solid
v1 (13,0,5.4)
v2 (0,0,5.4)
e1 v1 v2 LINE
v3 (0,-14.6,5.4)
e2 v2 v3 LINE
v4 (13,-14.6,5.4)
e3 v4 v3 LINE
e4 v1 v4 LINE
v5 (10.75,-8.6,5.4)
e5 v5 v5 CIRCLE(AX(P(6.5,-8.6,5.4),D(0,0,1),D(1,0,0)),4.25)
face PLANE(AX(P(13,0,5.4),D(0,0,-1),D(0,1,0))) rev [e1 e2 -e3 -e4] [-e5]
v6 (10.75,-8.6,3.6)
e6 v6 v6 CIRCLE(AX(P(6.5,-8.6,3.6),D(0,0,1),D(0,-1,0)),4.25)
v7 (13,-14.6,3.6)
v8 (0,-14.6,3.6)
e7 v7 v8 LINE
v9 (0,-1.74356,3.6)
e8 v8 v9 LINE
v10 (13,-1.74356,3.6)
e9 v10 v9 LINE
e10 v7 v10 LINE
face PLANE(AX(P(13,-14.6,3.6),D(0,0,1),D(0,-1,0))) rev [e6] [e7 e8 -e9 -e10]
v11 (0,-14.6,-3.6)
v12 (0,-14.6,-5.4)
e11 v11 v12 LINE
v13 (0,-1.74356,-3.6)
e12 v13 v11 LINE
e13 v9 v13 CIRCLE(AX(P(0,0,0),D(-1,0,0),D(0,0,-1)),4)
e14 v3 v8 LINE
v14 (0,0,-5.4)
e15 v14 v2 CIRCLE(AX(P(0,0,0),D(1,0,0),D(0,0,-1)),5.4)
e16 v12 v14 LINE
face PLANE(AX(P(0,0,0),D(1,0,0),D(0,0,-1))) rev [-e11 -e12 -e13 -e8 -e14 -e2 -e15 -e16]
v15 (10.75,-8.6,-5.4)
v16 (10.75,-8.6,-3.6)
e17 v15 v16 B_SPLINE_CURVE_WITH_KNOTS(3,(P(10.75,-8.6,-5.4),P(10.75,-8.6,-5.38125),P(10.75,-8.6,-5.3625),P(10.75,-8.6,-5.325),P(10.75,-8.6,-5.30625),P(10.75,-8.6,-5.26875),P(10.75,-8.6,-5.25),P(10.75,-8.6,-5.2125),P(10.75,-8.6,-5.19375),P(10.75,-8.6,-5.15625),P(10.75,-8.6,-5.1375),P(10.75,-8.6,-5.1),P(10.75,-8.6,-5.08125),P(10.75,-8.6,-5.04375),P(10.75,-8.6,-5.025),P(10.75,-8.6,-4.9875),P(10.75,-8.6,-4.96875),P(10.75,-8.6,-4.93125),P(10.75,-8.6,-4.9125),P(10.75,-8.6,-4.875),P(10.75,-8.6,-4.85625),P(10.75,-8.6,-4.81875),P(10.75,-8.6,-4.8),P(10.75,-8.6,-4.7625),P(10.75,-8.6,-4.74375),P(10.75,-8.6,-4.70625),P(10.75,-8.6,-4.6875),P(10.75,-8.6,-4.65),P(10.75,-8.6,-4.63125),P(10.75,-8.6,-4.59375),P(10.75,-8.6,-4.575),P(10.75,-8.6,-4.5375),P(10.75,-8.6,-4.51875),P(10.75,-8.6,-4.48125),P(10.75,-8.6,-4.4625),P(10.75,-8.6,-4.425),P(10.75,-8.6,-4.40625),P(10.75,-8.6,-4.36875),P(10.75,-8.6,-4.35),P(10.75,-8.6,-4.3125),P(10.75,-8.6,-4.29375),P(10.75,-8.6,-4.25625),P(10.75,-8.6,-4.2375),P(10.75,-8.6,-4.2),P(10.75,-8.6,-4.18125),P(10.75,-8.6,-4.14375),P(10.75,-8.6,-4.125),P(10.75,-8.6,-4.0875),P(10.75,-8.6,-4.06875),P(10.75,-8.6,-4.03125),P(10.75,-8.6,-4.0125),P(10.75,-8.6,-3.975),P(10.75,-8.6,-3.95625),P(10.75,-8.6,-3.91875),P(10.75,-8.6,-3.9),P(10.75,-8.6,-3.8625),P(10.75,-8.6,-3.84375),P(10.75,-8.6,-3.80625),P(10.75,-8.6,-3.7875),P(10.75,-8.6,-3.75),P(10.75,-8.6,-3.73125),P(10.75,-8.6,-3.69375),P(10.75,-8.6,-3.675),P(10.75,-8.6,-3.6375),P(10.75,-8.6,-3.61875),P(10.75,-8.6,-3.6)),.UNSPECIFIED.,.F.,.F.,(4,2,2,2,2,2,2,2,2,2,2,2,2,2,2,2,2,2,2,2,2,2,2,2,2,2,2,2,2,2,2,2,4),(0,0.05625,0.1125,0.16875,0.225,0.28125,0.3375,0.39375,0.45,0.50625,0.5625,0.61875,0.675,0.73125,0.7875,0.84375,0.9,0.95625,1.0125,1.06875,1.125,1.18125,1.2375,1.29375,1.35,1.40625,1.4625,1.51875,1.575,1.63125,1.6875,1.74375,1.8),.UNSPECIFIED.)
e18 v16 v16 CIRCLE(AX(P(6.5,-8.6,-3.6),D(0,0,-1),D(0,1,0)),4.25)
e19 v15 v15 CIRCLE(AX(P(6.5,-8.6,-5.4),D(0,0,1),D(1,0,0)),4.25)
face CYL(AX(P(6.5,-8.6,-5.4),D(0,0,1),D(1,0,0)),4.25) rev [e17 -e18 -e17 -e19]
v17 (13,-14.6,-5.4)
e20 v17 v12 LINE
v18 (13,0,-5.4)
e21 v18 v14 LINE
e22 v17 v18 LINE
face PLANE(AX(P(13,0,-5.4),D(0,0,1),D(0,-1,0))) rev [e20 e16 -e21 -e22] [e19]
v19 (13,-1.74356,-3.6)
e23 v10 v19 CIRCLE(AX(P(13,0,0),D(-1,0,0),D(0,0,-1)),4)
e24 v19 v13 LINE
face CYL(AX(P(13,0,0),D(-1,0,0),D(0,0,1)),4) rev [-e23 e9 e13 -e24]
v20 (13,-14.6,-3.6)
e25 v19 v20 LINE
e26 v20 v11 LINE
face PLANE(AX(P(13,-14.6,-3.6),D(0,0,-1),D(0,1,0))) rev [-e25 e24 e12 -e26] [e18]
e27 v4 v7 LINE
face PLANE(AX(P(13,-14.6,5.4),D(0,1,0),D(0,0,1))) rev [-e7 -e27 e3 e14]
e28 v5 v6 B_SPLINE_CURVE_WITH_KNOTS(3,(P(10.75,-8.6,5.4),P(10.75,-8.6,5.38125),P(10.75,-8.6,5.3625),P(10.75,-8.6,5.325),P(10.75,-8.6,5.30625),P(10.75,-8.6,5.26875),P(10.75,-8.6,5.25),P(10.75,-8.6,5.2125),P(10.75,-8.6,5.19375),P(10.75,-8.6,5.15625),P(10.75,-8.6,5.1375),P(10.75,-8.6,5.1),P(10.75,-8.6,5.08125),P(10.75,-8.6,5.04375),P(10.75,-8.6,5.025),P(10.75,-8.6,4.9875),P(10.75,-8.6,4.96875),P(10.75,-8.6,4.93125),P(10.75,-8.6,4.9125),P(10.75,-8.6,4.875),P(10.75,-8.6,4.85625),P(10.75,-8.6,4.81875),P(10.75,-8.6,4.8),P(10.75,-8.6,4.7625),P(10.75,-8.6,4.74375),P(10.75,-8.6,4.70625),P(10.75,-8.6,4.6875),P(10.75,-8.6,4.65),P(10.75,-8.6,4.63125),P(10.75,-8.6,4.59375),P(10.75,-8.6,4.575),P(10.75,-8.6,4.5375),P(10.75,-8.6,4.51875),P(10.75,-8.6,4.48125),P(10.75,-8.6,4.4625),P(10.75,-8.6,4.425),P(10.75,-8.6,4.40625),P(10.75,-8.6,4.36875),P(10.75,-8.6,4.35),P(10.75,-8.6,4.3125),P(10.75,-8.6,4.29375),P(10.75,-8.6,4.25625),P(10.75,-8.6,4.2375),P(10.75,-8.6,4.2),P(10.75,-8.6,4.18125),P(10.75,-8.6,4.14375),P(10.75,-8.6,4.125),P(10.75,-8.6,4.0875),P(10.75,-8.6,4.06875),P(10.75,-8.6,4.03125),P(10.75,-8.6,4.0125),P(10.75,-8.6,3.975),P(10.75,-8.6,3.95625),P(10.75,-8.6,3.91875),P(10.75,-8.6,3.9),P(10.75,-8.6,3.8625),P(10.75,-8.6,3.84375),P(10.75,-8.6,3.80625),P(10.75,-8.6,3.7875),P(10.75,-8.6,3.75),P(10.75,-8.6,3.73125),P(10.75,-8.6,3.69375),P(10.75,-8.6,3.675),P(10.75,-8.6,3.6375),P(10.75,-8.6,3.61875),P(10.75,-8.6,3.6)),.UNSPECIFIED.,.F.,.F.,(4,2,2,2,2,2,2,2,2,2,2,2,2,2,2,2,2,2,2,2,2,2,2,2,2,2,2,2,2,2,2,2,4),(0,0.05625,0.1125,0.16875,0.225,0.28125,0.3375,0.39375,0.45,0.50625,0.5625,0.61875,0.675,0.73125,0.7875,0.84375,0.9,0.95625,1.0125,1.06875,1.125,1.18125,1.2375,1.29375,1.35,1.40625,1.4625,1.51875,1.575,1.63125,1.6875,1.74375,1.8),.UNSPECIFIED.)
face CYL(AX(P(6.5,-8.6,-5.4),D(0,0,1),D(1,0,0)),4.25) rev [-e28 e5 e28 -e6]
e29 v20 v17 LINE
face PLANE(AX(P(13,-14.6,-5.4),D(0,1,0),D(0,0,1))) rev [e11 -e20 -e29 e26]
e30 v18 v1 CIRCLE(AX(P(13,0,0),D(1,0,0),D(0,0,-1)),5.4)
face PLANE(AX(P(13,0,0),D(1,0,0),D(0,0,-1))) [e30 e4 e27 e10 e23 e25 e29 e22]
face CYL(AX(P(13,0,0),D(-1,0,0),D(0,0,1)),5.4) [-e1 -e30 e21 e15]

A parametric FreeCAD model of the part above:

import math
import FreeCAD as App
import Part
import Sketcher
Q = App.Units.Quantity

doc = App.newDocument("Part")
body = doc.addObject("PartDesign::Body", "Body")

sketch1 = body.newObject("Sketcher::SketchObject", "Sketch")
sketch1.AttachmentSupport = (doc.getObject("YZ_Plane"), [""])
sketch1.MapMode = "FlatFace"
sketch1.addGeometry([
    Part.LineSegment(App.Vector(-14.6, -5.4, 0), App.Vector(0, -5.4, 0)),
    Part.ArcOfCircle(Part.Circle(App.Vector(0, 0, 0), App.Vector(0, 0, 1), 5.4), math.radians(-90), math.radians(90)),
    Part.LineSegment(App.Vector(0, 5.4, 0), App.Vector(-14.6, 5.4, 0)),
    Part.LineSegment(App.Vector(-14.6, 5.4, 0), App.Vector(-14.6, 3.6, 0)),
    Part.LineSegment(App.Vector(-14.6, 3.6, 0), App.Vector(-1.7, 3.6, 0)),
    Part.ArcOfCircle(Part.Circle(App.Vector(0, 0, 0), App.Vector(0, 0, 1), 4), math.radians(-116), math.radians(116)),
    Part.LineSegment(App.Vector(-1.7, -3.6, 0), App.Vector(-14.6, -3.6, 0)),
    Part.LineSegment(App.Vector(-14.6, -3.6, 0), App.Vector(-14.6, -5.4, 0)),
], False)
sketch1.addConstraint([
    Sketcher.Constraint("Tangent", 0, 2, 1, 1),
    Sketcher.Constraint("Tangent", 1, 2, 2, 1),
    Sketcher.Constraint("Coincident", 2, 2, 3, 1),
    Sketcher.Constraint("Coincident", 3, 2, 4, 1),
    Sketcher.Constraint("Coincident", 4, 2, 5, 2),
    Sketcher.Constraint("Coincident", 5, 1, 6, 1),
    Sketcher.Constraint("Coincident", 6, 2, 7, 1),
    Sketcher.Constraint("Coincident", 7, 2, 0, 1),
    Sketcher.Constraint("Horizontal", 0),
    Sketcher.Constraint("Horizontal", 2),
    Sketcher.Constraint("Vertical", 3),
    Sketcher.Constraint("Horizontal", 4),
    Sketcher.Constraint("Horizontal", 6),
    Sketcher.Constraint("Vertical", 7),
    Sketcher.Constraint("Coincident", 1, 3, -1, 1),
    Sketcher.Constraint("Coincident", 5, 3, -1, 1),
    Sketcher.Constraint("Symmetric", 3, 2, 6, 2, -1),
    Sketcher.Constraint("Radius", 5, Q("4 mm")),
    Sketcher.Constraint("Radius", 1, Q("5.4 mm")),
    Sketcher.Constraint("DistanceX", 0, 1, 0, 2, Q("14.6 mm")),
    Sketcher.Constraint("DistanceY", 3, 2, 3, 1, Q("1.8 mm")),
])
pad1 = body.newObject("PartDesign::Pad", "Pad")
pad1.Profile = sketch1
pad1.Length = 13

sketch2 = body.newObject("Sketcher::SketchObject", "Sketch001")
sketch2.AttachmentSupport = (doc.getObject("XY_Plane"), [""])
sketch2.MapMode = "FlatFace"
sketch2.AttachmentOffset = App.Placement(App.Vector(0, 0, 5.4), App.Rotation())
sketch2.addGeometry(Part.Circle(App.Vector(6.5, -8.6, 0), App.Vector(0, 0, 1), 4.2), False)
sketch2.addConstraint([
    Sketcher.Constraint("Diameter", 0, Q("8.5 mm")),
    Sketcher.Constraint("DistanceX", -1, 1, 0, 3, Q("6.5 mm")),
    Sketcher.Constraint("DistanceY", 0, 3, -1, 1, Q("8.6 mm")),
])
pocket1 = body.newObject("PartDesign::Pocket", "Pocket")
pocket1.Profile = sketch2
pocket1.Type = "ThroughAll"

doc.recompute()
